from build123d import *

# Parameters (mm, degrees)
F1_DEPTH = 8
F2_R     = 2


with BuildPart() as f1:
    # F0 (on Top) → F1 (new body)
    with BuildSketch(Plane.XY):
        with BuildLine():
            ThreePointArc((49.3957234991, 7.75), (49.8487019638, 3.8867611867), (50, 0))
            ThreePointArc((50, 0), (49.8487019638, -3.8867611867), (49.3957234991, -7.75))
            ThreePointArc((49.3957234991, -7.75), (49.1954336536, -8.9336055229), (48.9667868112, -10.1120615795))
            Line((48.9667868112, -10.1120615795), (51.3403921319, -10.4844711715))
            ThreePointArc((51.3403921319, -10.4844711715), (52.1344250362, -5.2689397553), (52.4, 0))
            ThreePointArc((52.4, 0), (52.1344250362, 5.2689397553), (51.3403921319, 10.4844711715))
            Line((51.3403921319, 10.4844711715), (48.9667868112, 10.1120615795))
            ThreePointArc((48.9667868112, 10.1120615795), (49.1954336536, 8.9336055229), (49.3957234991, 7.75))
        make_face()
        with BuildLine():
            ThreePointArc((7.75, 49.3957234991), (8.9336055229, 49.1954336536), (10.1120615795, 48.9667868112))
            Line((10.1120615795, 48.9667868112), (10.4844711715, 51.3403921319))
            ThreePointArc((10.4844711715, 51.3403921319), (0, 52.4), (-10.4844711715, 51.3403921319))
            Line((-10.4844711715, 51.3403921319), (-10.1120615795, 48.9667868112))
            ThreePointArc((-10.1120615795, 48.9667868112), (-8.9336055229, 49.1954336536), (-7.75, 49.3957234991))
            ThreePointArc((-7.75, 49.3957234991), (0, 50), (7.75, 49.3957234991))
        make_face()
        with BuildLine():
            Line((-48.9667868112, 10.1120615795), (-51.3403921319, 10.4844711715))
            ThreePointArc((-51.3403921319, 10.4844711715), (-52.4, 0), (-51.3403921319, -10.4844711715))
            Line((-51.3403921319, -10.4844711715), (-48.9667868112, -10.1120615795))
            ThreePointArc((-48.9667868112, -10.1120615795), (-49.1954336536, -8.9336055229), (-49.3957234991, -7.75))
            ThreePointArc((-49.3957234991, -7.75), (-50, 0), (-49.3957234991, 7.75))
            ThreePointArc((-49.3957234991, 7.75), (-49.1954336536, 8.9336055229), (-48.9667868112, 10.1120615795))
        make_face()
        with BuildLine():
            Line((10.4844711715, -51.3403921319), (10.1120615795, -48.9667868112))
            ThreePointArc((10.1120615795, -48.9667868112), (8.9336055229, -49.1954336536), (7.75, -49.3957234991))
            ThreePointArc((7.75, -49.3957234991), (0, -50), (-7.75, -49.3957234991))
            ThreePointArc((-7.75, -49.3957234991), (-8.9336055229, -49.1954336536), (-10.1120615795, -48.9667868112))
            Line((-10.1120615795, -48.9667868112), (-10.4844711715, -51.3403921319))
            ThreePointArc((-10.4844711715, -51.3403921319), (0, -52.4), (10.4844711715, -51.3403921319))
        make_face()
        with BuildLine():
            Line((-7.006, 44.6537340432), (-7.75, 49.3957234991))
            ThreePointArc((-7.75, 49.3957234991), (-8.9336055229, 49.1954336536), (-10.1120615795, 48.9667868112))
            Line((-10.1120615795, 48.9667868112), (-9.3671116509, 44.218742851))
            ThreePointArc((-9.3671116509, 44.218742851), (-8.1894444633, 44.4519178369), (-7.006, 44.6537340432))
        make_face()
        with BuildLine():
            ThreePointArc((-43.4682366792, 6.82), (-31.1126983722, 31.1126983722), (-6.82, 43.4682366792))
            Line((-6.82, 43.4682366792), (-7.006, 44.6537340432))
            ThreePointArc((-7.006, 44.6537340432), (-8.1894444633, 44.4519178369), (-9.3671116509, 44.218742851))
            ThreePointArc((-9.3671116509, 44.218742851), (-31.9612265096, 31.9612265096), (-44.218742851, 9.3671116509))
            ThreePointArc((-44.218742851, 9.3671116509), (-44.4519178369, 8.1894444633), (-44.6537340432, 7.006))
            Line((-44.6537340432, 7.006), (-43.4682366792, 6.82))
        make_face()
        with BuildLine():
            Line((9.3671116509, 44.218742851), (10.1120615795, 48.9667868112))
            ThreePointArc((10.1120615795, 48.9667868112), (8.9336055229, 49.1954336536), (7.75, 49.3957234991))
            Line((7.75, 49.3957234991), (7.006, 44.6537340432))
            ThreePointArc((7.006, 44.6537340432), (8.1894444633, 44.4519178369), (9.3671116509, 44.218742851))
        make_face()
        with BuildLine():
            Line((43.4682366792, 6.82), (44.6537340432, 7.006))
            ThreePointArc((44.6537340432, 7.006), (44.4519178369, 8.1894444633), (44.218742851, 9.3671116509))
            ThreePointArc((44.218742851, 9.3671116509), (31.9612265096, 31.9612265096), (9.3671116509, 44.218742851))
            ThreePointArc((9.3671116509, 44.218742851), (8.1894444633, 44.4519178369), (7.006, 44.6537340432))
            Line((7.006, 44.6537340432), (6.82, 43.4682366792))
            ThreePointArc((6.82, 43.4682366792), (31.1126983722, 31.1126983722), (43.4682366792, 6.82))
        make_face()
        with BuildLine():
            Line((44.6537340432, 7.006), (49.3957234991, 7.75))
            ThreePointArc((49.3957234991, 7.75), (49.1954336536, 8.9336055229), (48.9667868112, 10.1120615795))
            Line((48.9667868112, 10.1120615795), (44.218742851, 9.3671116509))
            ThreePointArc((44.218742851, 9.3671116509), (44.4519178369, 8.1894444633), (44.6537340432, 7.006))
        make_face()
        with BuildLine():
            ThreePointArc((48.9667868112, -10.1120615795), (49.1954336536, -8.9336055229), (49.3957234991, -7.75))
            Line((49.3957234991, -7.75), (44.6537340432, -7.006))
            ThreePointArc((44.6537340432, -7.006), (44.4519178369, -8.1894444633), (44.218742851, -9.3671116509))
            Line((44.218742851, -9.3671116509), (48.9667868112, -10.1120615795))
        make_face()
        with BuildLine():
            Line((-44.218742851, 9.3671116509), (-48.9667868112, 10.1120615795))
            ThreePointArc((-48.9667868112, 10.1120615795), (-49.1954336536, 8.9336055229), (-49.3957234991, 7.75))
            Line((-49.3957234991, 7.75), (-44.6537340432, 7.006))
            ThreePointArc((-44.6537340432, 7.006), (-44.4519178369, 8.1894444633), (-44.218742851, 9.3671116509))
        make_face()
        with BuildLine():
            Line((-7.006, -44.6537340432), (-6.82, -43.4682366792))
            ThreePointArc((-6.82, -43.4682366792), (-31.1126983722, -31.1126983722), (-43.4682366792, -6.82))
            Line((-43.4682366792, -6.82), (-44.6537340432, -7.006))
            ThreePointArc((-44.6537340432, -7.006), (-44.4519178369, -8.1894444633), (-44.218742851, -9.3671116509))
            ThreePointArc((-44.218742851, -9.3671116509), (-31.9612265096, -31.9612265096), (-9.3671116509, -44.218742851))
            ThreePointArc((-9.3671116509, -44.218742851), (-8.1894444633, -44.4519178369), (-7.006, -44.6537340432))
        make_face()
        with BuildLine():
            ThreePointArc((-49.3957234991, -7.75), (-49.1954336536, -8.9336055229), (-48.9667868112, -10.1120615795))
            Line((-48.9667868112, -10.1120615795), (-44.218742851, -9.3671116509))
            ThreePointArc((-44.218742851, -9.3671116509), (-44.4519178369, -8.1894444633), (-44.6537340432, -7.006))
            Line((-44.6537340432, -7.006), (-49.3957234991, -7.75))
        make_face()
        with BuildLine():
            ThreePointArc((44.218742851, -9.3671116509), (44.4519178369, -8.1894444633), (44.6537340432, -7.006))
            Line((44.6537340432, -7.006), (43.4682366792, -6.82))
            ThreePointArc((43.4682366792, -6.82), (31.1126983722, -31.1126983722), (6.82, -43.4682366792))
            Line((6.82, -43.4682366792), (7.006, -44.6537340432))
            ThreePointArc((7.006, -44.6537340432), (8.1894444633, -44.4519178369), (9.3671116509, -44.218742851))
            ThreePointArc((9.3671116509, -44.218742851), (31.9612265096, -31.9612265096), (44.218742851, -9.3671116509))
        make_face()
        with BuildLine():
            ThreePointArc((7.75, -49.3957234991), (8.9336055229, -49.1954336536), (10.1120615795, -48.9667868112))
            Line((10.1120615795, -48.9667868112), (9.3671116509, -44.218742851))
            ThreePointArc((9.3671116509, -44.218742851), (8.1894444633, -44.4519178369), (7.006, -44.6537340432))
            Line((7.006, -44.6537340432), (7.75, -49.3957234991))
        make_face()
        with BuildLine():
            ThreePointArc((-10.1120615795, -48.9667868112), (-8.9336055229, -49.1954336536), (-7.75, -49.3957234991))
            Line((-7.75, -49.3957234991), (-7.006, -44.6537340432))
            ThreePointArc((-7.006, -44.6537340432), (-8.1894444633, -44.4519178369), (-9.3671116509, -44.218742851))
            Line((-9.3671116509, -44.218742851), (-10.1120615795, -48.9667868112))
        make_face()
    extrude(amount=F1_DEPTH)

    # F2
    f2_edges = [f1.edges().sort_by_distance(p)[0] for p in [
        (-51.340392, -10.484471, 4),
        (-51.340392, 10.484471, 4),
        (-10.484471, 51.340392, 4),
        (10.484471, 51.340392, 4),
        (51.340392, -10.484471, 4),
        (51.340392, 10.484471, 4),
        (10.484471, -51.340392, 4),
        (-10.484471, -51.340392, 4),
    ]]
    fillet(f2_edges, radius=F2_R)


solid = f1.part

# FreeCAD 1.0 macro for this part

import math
import FreeCAD as App
import Part
import Sketcher


def edges_at(feature, points):
    """Names of the edges that pass closest to the given points."""
    edges = feature.Shape.Edges
    near = lambda p: min(range(len(edges)), key=lambda i: edges[i].distToShape(Part.Vertex(*p))[0])
    return sorted({f"Edge{near(p) + 1}" for p in points})

doc = App.newDocument("Part")
params = doc.addObject("Spreadsheet::Sheet", "Params")
for row, (alias, value) in enumerate([
    ("sketch1_radius", "50 mm"),
    ("sketch1_radius2", "44 mm"),
    ("sketch1_radius3", "52.4 mm"),
    ("sketch1_radius4", "45.2 mm"),
    ("sketch1_length", "4.8 mm"),
    ("pad1_length", "8 mm"),
    ("fillet_radius", "2 mm"),
], start=1):
    params.set(f"A{row}", alias)
    params.set(f"B{row}", "=" + value)
    params.setAlias(f"B{row}", alias)

body = doc.addObject("PartDesign::Body", "Body")

sketch1 = body.newObject("Sketcher::SketchObject", "Sketch")
sketch1.AttachmentSupport = (doc.getObject("XY_Plane"), [""])
sketch1.MapMode = "FlatFace"
sketch1.addGeometry([
    Part.LineSegment(App.Vector(-10.1, -49, 0), App.Vector(-10.5, -51.3, 0)),
    Part.ArcOfCircle(Part.Circle(App.Vector(0, 0, 0), App.Vector(0, 0, 1), 52.4), math.radians(-102), math.radians(-78)),
    Part.LineSegment(App.Vector(10.5, -51.3, 0), App.Vector(10.1, -49, 0)),
    Part.LineSegment(App.Vector(10.1, -49, 0), App.Vector(9.4, -44.2, 0)),
    Part.ArcOfCircle(Part.Circle(App.Vector(0, 0, 0), App.Vector(0, 0, 1), 45.2), math.radians(-78), math.radians(-12)),
    Part.LineSegment(App.Vector(44.2, -9.4, 0), App.Vector(49, -10.1, 0)),
    Part.LineSegment(App.Vector(49, -10.1, 0), App.Vector(51.3, -10.5, 0)),
    Part.ArcOfCircle(Part.Circle(App.Vector(0, 0, 0), App.Vector(0, 0, 1), 52.4), math.radians(-11.54), math.radians(0)),
    Part.ArcOfCircle(Part.Circle(App.Vector(0, 0, 0), App.Vector(0, 0, 1), 52.4), math.radians(0), math.radians(11.54)),
    Part.LineSegment(App.Vector(51.3, 10.5, 0), App.Vector(49, 10.1, 0)),
    Part.LineSegment(App.Vector(49, 10.1, 0), App.Vector(44.2, 9.4, 0)),
    Part.ArcOfCircle(Part.Circle(App.Vector(0, 0, 0), App.Vector(0, 0, 1), 45.2), math.radians(12), math.radians(78)),
    Part.LineSegment(App.Vector(9.4, 44.2, 0), App.Vector(10.1, 49, 0)),
    Part.LineSegment(App.Vector(10.1, 49, 0), App.Vector(10.5, 51.3, 0)),
    Part.ArcOfCircle(Part.Circle(App.Vector(0, 0, 0), App.Vector(0, 0, 1), 52.4), math.radians(78), math.radians(102)),
    Part.LineSegment(App.Vector(-10.5, 51.3, 0), App.Vector(-10.1, 49, 0)),
    Part.LineSegment(App.Vector(-10.1, 49, 0), App.Vector(-9.4, 44.2, 0)),
    Part.ArcOfCircle(Part.Circle(App.Vector(0, 0, 0), App.Vector(0, 0, 1), 45.2), math.radians(102), math.radians(168)),
    Part.LineSegment(App.Vector(-44.2, 9.4, 0), App.Vector(-49, 10.1, 0)),
    Part.LineSegment(App.Vector(-49, 10.1, 0), App.Vector(-51.3, 10.5, 0)),
    Part.ArcOfCircle(Part.Circle(App.Vector(0, 0, 0), App.Vector(0, 0, 1), 52.4), math.radians(168), math.radians(192)),
    Part.LineSegment(App.Vector(-51.3, -10.5, 0), App.Vector(-49, -10.1, 0)),
    Part.LineSegment(App.Vector(-49, -10.1, 0), App.Vector(-44.2, -9.4, 0)),
    Part.ArcOfCircle(Part.Circle(App.Vector(0, 0, 0), App.Vector(0, 0, 1), 45.2), math.radians(-168), math.radians(-102)),
    Part.LineSegment(App.Vector(-9.4, -44.2, 0), App.Vector(-10.1, -49, 0)),
    Part.ArcOfCircle(Part.Circle(App.Vector(0, 0, 0), App.Vector(0, 0, 1), 50), math.radians(0), math.radians(8.92)),
    Part.ArcOfCircle(Part.Circle(App.Vector(0, 0, 0), App.Vector(0, 0, 1), 50), math.radians(-8.92), math.radians(0)),
    Part.LineSegment(App.Vector(49.4, -7.8, 0), App.Vector(44.7, -7, 0)),
    Part.LineSegment(App.Vector(44.7, -7, 0), App.Vector(43.5, -6.8, 0)),
    Part.ArcOfCircle(Part.Circle(App.Vector(0, 0, 0), App.Vector(0, 0, 1), 44), math.radians(-81), math.radians(-9)),
    Part.LineSegment(App.Vector(6.8, -43.5, 0), App.Vector(7, -44.7, 0)),
    Part.LineSegment(App.Vector(7, -44.7, 0), App.Vector(7.8, -49.4, 0)),
    Part.ArcOfCircle(Part.Circle(App.Vector(0, 0, 0), App.Vector(0, 0, 1), 50), math.radians(-98.92), math.radians(-81.08)),
    Part.LineSegment(App.Vector(-7.8, -49.4, 0), App.Vector(-7, -44.7, 0)),
    Part.LineSegment(App.Vector(-7, -44.7, 0), App.Vector(-6.8, -43.5, 0)),
    Part.ArcOfCircle(Part.Circle(App.Vector(0, 0, 0), App.Vector(0, 0, 1), 44), math.radians(-171), math.radians(-99)),
    Part.LineSegment(App.Vector(-43.5, -6.8, 0), App.Vector(-44.7, -7, 0)),
    Part.LineSegment(App.Vector(-44.7, -7, 0), App.Vector(-49.4, -7.8, 0)),
    Part.ArcOfCircle(Part.Circle(App.Vector(0, 0, 0), App.Vector(0, 0, 1), 50), math.radians(171.08), math.radians(188.92)),
    Part.LineSegment(App.Vector(-49.4, 7.8, 0), App.Vector(-44.7, 7, 0)),
    Part.LineSegment(App.Vector(-44.7, 7, 0), App.Vector(-43.5, 6.8, 0)),
    Part.ArcOfCircle(Part.Circle(App.Vector(0, 0, 0), App.Vector(0, 0, 1), 44), math.radians(99), math.radians(171)),
    Part.LineSegment(App.Vector(-6.8, 43.5, 0), App.Vector(-7, 44.7, 0)),
    Part.LineSegment(App.Vector(-7, 44.7, 0), App.Vector(-7.8, 49.4, 0)),
    Part.ArcOfCircle(Part.Circle(App.Vector(0, 0, 0), App.Vector(0, 0, 1), 50), math.radians(81.08), math.radians(98.92)),
    Part.LineSegment(App.Vector(7.8, 49.4, 0), App.Vector(7, 44.7, 0)),
    Part.LineSegment(App.Vector(7, 44.7, 0), App.Vector(6.8, 43.5, 0)),
    Part.ArcOfCircle(Part.Circle(App.Vector(0, 0, 0), App.Vector(0, 0, 1), 44), math.radians(9), math.radians(81)),
    Part.LineSegment(App.Vector(43.5, 6.8, 0), App.Vector(44.7, 7, 0)),
    Part.LineSegment(App.Vector(44.7, 7, 0), App.Vector(49.4, 7.8, 0)),
], False)
sketch1.addConstraint([
    Sketcher.Constraint("Coincident", 0, 2, 1, 1),
    Sketcher.Constraint("Coincident", 1, 2, 2, 1),
    Sketcher.Constraint("Coincident", 2, 2, 3, 1),
    Sketcher.Constraint("Coincident", 3, 2, 4, 1),
    Sketcher.Constraint("Coincident", 4, 2, 5, 1),
    Sketcher.Constraint("Coincident", 5, 2, 6, 1),
    Sketcher.Constraint("Coincident", 6, 2, 7, 1),
    Sketcher.Constraint("Tangent", 7, 2, 8, 1),
    Sketcher.Constraint("Coincident", 8, 2, 9, 1),
    Sketcher.Constraint("Coincident", 9, 2, 10, 1),
    Sketcher.Constraint("Coincident", 10, 2, 11, 1),
    Sketcher.Constraint("Coincident", 11, 2, 12, 1),
    Sketcher.Constraint("Coincident", 12, 2, 13, 1),
    Sketcher.Constraint("Coincident", 13, 2, 14, 1),
    Sketcher.Constraint("Coincident", 14, 2, 15, 1),
    Sketcher.Constraint("Coincident", 15, 2, 16, 1),
    Sketcher.Constraint("Coincident", 16, 2, 17, 1),
    Sketcher.Constraint("Coincident", 17, 2, 18, 1),
    Sketcher.Constraint("Coincident", 18, 2, 19, 1),
    Sketcher.Constraint("Coincident", 19, 2, 20, 1),
    Sketcher.Constraint("Coincident", 20, 2, 21, 1),
    Sketcher.Constraint("Coincident", 21, 2, 22, 1),
    Sketcher.Constraint("Coincident", 22, 2, 23, 1),
    Sketcher.Constraint("Coincident", 23, 2, 24, 1),
    Sketcher.Constraint("Coincident", 24, 2, 0, 1),
    Sketcher.Constraint("Tangent", 25, 1, 26, 2),
    Sketcher.Constraint("Coincident", 26, 1, 27, 1),
    Sketcher.Constraint("Coincident", 27, 2, 28, 1),
    Sketcher.Constraint("Coincident", 28, 2, 29, 2),
    Sketcher.Constraint("Coincident", 29, 1, 30, 1),
    Sketcher.Constraint("Coincident", 30, 2, 31, 1),
    Sketcher.Constraint("Coincident", 31, 2, 32, 2),
    Sketcher.Constraint("Coincident", 32, 1, 33, 1),
    Sketcher.Constraint("Coincident", 33, 2, 34, 1),
    Sketcher.Constraint("Coincident", 34, 2, 35, 2),
    Sketcher.Constraint("Coincident", 35, 1, 36, 1),
    Sketcher.Constraint("Coincident", 36, 2, 37, 1),
    Sketcher.Constraint("Coincident", 37, 2, 38, 2),
    Sketcher.Constraint("Coincident", 38, 1, 39, 1),
    Sketcher.Constraint("Coincident", 39, 2, 40, 1),
    Sketcher.Constraint("Coincident", 40, 2, 41, 2),
    Sketcher.Constraint("Coincident", 41, 1, 42, 1),
    Sketcher.Constraint("Coincident", 42, 2, 43, 1),
    Sketcher.Constraint("Coincident", 43, 2, 44, 2),
    Sketcher.Constraint("Coincident", 44, 1, 45, 1),
    Sketcher.Constraint("Coincident", 45, 2, 46, 1),
    Sketcher.Constraint("Coincident", 46, 2, 47, 2),
    Sketcher.Constraint("Coincident", 47, 1, 48, 1),
    Sketcher.Constraint("Coincident", 48, 2, 49, 1),
    Sketcher.Constraint("Coincident", 49, 2, 25, 2),
    Sketcher.Constraint("Coincident", 1, 3, -1, 1),
    Sketcher.Constraint("Coincident", 4, 3, -1, 1),
    Sketcher.Constraint("Coincident", 7, 3, -1, 1),
    Sketcher.Constraint("Coincident", 11, 3, -1, 1),
    Sketcher.Constraint("Coincident", 14, 3, -1, 1),
    Sketcher.Constraint("Coincident", 17, 3, -1, 1),
    Sketcher.Constraint("Coincident", 20, 3, -1, 1),
    Sketcher.Constraint("Coincident", 23, 3, -1, 1),
    Sketcher.Constraint("Coincident", 25, 3, -1, 1),
    Sketcher.Constraint("Coincident", 29, 3, -1, 1),
    Sketcher.Constraint("Coincident", 32, 3, -1, 1),
    Sketcher.Constraint("Coincident", 35, 3, -1, 1),
    Sketcher.Constraint("Coincident", 38, 3, -1, 1),
    Sketcher.Constraint("Coincident", 41, 3, -1, 1),
    Sketcher.Constraint("Coincident", 44, 3, -1, 1),
    Sketcher.Constraint("Coincident", 47, 3, -1, 1),
    Sketcher.Constraint("Equal", 1, 7),
    Sketcher.Constraint("Equal", 7, 8),
    Sketcher.Constraint("Equal", 4, 11),
    Sketcher.Constraint("Equal", 8, 14),
    Sketcher.Constraint("Equal", 11, 17),
    Sketcher.Constraint("Equal", 14, 20),
    Sketcher.Constraint("Equal", 17, 23),
    Sketcher.Constraint("Equal", 25, 26),
    Sketcher.Constraint("Equal", 26, 32),
    Sketcher.Constraint("Equal", 29, 35),
    Sketcher.Constraint("Equal", 32, 38),
    Sketcher.Constraint("Equal", 35, 41),
    Sketcher.Constraint("Equal", 38, 44),
    Sketcher.Constraint("Equal", 41, 47),
    Sketcher.Constraint("Symmetric", 2, 2, 15, 2, -1, 1),
    Sketcher.Constraint("Symmetric", 5, 2, 18, 2, -1, 1),
    Sketcher.Constraint("Symmetric", 9, 2, 21, 2, -1, 1),
    Sketcher.Constraint("Symmetric", 12, 2, 24, 2, -1, 1),
    Sketcher.Constraint("Symmetric", 27, 2, 39, 2, -1, 1),
    Sketcher.Constraint("Symmetric", 30, 2, 42, 2, -1, 1),
    Sketcher.Constraint("Symmetric", 33, 2, 45, 2, -1, 1),
    Sketcher.Constraint("Symmetric", 36, 2, 48, 2, -1, 1),
    Sketcher.Constraint("Symmetric", 12, 2, 15, 2, -2),
    Sketcher.Constraint("Symmetric", 9, 2, 18, 2, -2),
    Sketcher.Constraint("Symmetric", 30, 2, 33, 2, -2),
    Sketcher.Constraint("Symmetric", 27, 2, 36, 2, -2),
    Sketcher.Constraint("PointOnObject", 7, 2, -1),
    Sketcher.Constraint("PointOnObject", 25, 1, -1),
    Sketcher.Constraint("Parallel", 2, 3),
    Sketcher.Constraint("Perpendicular", 0, 5),
    Sketcher.Constraint("Parallel", 5, 6),
    Sketcher.Constraint("Perpendicular", 3, 9),
    Sketcher.Constraint("Parallel", 9, 10),
    Sketcher.Constraint("Perpendicular", 6, 12),
    Sketcher.Constraint("Parallel", 12, 13),
    Sketcher.Constraint("Perpendicular", 10, 15),
    Sketcher.Constraint("Parallel", 15, 16),
    Sketcher.Constraint("Perpendicular", 13, 18),
    Sketcher.Constraint("Parallel", 18, 19),
    Sketcher.Constraint("Perpendicular", 16, 21),
    Sketcher.Constraint("Parallel", 21, 22),
    Sketcher.Constraint("Perpendicular", 19, 24),
    Sketcher.Constraint("Perpendicular", 24, 27),
    Sketcher.Constraint("Parallel", 27, 28),
    Sketcher.Constraint("Perpendicular", 22, 30),
    Sketcher.Constraint("Parallel", 30, 31),
    Sketcher.Constraint("Perpendicular", 28, 33),
    Sketcher.Constraint("Parallel", 33, 34),
    Sketcher.Constraint("Perpendicular", 31, 36),
    Sketcher.Constraint("Parallel", 36, 37),
    Sketcher.Constraint("Perpendicular", 34, 39),
    Sketcher.Constraint("Parallel", 39, 40),
    Sketcher.Constraint("Perpendicular", 37, 42),
    Sketcher.Constraint("Parallel", 42, 43),
    Sketcher.Constraint("Perpendicular", 40, 45),
    Sketcher.Constraint("Parallel", 45, 46),
    Sketcher.Constraint("Perpendicular", 43, 48),
    Sketcher.Constraint("Parallel", 48, 49),
    Sketcher.Constraint("Horizontal", 0, 2, 1, 2),
    Sketcher.Constraint("Equal", 3, 5),
    Sketcher.Constraint("Equal", 28, 30),
    Sketcher.Constraint("Radius", 25, 50.0),
    Sketcher.Constraint("Radius", 29, 44.0),
    Sketcher.Constraint("Radius", 1, 52.4),
    Sketcher.Constraint("Radius", 4, 45.2),
    Sketcher.Constraint("Distance", 27, 4.8),
    Sketcher.Constraint("DistanceY", 26, 1, -1, 1, 7.75),
    Sketcher.Constraint("DistanceY", 28, 2, -1, 1, 6.82),
    Sketcher.Constraint("DistanceX", -1, 1, 29, 1, 6.82),
    Sketcher.Constraint("Distance", 3, 4.806129),
    Sketcher.Constraint("DistanceX", 0, 2, -1, 1, 10.484471),
    Sketcher.Constraint("DistanceY", 4, 2, -1, 1, 9.367112),
])
sketch1.setExpression("Constraints[127]", "Params.sketch1_radius")
sketch1.setExpression("Constraints[128]", "Params.sketch1_radius2")
sketch1.setExpression("Constraints[129]", "Params.sketch1_radius3")
sketch1.setExpression("Constraints[130]", "Params.sketch1_radius4")
sketch1.setExpression("Constraints[131]", "Params.sketch1_length")
pad1 = body.newObject("PartDesign::Pad", "Pad")
pad1.Profile = sketch1
pad1.setExpression("Length", "Params.pad1_length")
doc.recompute()

fillet = body.newObject("PartDesign::Fillet", "Fillet")
fillet.Base = (pad1, edges_at(pad1, [
    (-51.34, -10.484, 4),
    (-51.34, 10.484, 4),
    (-10.484, 51.34, 4),
    (10.484, 51.34, 4),
    (51.34, -10.484, 4),
    (51.34, 10.484, 4),
    (10.484, -51.34, 4),
    (-10.484, -51.34, 4),
]))
fillet.setExpression("Radius", "Params.fillet_radius")

doc.recompute()
